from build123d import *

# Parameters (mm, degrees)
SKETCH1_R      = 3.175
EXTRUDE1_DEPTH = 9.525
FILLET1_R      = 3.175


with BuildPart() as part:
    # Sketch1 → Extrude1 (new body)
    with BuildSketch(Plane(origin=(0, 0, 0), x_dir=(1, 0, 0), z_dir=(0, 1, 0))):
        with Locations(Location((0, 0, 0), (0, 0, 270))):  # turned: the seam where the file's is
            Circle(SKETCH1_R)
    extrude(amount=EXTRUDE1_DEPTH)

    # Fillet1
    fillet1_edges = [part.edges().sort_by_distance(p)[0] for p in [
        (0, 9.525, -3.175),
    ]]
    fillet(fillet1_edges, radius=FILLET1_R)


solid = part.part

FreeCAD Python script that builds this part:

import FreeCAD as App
import Part
import Sketcher

V = App.Vector
Q = App.Units.Quantity


def edges_at(feature, points):
    """Names of the edges that pass closest to the given points."""
    edges = feature.Shape.Edges
    near = lambda p: min(range(len(edges)), key=lambda i: edges[i].distToShape(Part.Vertex(*p))[0])
    return sorted({f"Edge{near(p) + 1}" for p in points})

doc = App.newDocument("Part")
body = doc.addObject("PartDesign::Body", "Body")

# Sketch on XZ plane
sketch1 = doc.addObject("Sketcher::SketchObject", "Sketch")
body.addObject(sketch1)
sketch1.AttachmentSupport = (doc.XZ_Plane, [""])
sketch1.MapMode = "FlatFace"
sketch1.addGeometry(Part.Circle(V(0, 0, 0), V(0, 0, 1), 3.175), False)
sketch1.addConstraint(Sketcher.Constraint("Coincident", 0, 3, -1, 1))
sketch1.addConstraint(Sketcher.Constraint("Diameter", 0, Q("0.25 in")))
pad1 = doc.addObject("PartDesign::Pad", "Pad")
body.addObject(pad1)
pad1.Profile = sketch1
pad1.Length = Q("0.375 in")
pad1.Reversed = True
doc.recompute()

fillet = doc.addObject("PartDesign::Fillet", "Fillet")
body.addObject(fillet)
fillet.Base = (pad1, edges_at(pad1, [(0, 9.525, -3.175)]))
fillet.Radius = Q("0.125 in")

doc.recompute()
